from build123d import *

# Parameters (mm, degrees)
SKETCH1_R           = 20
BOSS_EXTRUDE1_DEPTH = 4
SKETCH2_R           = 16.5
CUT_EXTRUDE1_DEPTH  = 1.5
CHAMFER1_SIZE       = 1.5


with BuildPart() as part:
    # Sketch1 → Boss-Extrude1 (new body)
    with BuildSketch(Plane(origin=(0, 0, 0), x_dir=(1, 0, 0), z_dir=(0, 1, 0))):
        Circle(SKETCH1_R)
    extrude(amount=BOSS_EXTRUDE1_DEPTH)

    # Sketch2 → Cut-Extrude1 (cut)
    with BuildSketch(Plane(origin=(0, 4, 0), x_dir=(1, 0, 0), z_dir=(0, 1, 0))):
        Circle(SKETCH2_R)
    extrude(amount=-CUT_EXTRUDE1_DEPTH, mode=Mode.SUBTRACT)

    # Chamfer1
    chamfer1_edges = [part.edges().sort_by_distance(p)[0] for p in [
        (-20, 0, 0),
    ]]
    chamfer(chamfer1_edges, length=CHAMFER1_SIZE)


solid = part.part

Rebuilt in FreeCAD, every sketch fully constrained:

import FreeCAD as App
import Part
import Sketcher
from FreeCAD import Vector


def edges_at(feature, points):
    """Names of the edges that pass closest to the given points."""
    edges = feature.Shape.Edges
    near = lambda p: min(range(len(edges)), key=lambda i: edges[i].distToShape(Part.Vertex(*p))[0])
    return sorted({f"Edge{near(p) + 1}" for p in points})

doc = App.newDocument("Part")
params = doc.addObject("Spreadsheet::Sheet", "Params")
for row, (alias, value) in enumerate([
    ("sketch1_diameter", "40 mm"),
    ("pad1_length", "4 mm"),
    ("sketch2_diameter", "33 mm"),
    ("pocket1_length", "1.5 mm"),
    ("chamfer_size", "1.5 mm"),
], start=1):
    params.set(f"A{row}", alias)
    params.set(f"B{row}", "=" + value)
    params.setAlias(f"B{row}", alias)

body = doc.addObject("PartDesign::Body", "Body")

# Sketch on XZ plane
sketch1 = doc.addObject("Sketcher::SketchObject", "Sketch")
body.addObject(sketch1)
sketch1.AttachmentSupport = (doc.XZ_Plane, [""])
sketch1.MapMode = "FlatFace"
sketch1.addGeometry(Part.Circle(Vector(0, 0, 0), Vector(0, 0, 1), 20), False)
sketch1.addConstraint(Sketcher.Constraint("Coincident", 0, 3, -1, 1))
sketch1.addConstraint(Sketcher.Constraint("Diameter", 0, 40.0))
sketch1.setExpression("Constraints[1]", "Params.sketch1_diameter")
pad1 = doc.addObject("PartDesign::Pad", "Pad")
body.addObject(pad1)
pad1.Profile = sketch1
pad1.setExpression("Length", "Params.pad1_length")
pad1.Reversed = True

# Sketch on XZ plane
sketch2 = doc.addObject("Sketcher::SketchObject", "Sketch001")
body.addObject(sketch2)
sketch2.AttachmentSupport = (doc.XZ_Plane, [""])
sketch2.MapMode = "FlatFace"
sketch2.AttachmentOffset = App.Placement(Vector(0, 0, -4), App.Rotation())
sketch2.addGeometry(Part.Circle(Vector(0, 0, 0), Vector(0, 0, 1), 16), False)
sketch2.addConstraint(Sketcher.Constraint("Coincident", 0, 3, -1, 1))
sketch2.addConstraint(Sketcher.Constraint("Diameter", 0, 33.0))
sketch2.setExpression("Constraints[1]", "Params.sketch2_diameter")
pocket1 = doc.addObject("PartDesign::Pocket", "Pocket")
body.addObject(pocket1)
pocket1.Profile = sketch2
pocket1.setExpression("Length", "Params.pocket1_length")
pocket1.Reversed = True
doc.recompute()

chamfer = doc.addObject("PartDesign::Chamfer", "Chamfer")
body.addObject(chamfer)
chamfer.Base = (pocket1, edges_at(pocket1, [(-20, 0, 0)]))
chamfer.setExpression("Size", "Params.chamfer_size")

doc.recompute()
